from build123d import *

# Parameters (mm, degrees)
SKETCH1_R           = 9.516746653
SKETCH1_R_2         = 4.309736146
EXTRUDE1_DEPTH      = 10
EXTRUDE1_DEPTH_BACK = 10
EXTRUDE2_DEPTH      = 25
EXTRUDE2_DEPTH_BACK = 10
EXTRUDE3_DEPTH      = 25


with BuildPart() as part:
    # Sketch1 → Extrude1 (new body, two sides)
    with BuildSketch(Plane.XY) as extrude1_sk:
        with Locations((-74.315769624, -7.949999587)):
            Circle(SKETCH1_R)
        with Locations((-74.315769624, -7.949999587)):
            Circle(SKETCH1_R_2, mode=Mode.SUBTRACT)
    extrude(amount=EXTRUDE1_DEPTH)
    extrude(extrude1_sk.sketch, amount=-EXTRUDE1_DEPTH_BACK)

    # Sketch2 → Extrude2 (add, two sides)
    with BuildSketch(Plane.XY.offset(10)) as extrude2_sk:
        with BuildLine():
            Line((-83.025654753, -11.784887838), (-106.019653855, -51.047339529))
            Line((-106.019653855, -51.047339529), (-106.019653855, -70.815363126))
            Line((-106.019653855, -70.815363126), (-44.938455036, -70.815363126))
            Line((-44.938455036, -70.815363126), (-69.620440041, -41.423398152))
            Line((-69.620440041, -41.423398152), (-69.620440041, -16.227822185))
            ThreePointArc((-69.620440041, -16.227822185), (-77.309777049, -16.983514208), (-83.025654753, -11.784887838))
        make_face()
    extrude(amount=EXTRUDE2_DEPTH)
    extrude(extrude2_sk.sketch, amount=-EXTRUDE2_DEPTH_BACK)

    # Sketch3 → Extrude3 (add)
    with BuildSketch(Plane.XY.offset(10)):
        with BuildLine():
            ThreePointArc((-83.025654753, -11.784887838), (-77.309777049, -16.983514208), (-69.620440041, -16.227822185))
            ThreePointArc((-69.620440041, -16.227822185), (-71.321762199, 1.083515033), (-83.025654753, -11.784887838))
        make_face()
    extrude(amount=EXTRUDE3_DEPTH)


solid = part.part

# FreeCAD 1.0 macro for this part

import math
import FreeCAD as App
import Part
import Sketcher

V = App.Vector
Q = App.Units.Quantity

doc = App.newDocument("Part")
body = doc.addObject("PartDesign::Body", "Body")

# Sketch on XY plane
sketch1 = doc.addObject("Sketcher::SketchObject", "Sketch")
body.addObject(sketch1)
sketch1.AttachmentSupport = (doc.XY_Plane, [""])
sketch1.MapMode = "FlatFace"
sketch1.addGeometry(Part.Circle(V(-74.3, -7.9, 0), V(0, 0, 1), 9.5), False)
sketch1.addGeometry(Part.Circle(V(-74.3, -7.9, 0), V(0, 0, 1), 4.3), False)
sketch1.addConstraint(Sketcher.Constraint("Coincident", 1, 3, 0, 3))
sketch1.addConstraint(Sketcher.Constraint("DistanceY", 0, 3, -1, 1, Q("7.95 mm")))
sketch1.addConstraint(Sketcher.Constraint("Diameter", 0, Q("19.033493 mm")))
sketch1.addConstraint(Sketcher.Constraint("Diameter", 1, Q("8.619472 mm")))
sketch1.addConstraint(Sketcher.Constraint("DistanceX", 0, 3, -1, 1, Q("74.31577 mm")))
pad1 = doc.addObject("PartDesign::Pad", "Pad")
body.addObject(pad1)
pad1.Profile = sketch1
pad1.Type = "TwoLengths"
pad1.Length = 10
pad1.Length2 = 10

# Sketch on XY plane
sketch2 = doc.addObject("Sketcher::SketchObject", "Sketch001")
body.addObject(sketch2)
sketch2.AttachmentSupport = (doc.XY_Plane, [""])
sketch2.MapMode = "FlatFace"
sketch2.AttachmentOffset = App.Placement(V(0, 0, 10), App.Rotation())
sketch2.addGeometry(Part.LineSegment(V(-83, -12, 0), V(-106, -51, 0)), False)
sketch2.addGeometry(Part.LineSegment(V(-106, -51, 0), V(-106, -71, 0)), False)
sketch2.addGeometry(Part.LineSegment(V(-106, -71, 0), V(-45, -71, 0)), False)
sketch2.addGeometry(Part.LineSegment(V(-45, -71, 0), V(-70, -41, 0)), False)
sketch2.addGeometry(Part.LineSegment(V(-70, -41, 0), V(-70, -16, 0)), False)
sketch2.addGeometry(Part.ArcOfCircle(Part.Circle(V(-74, -8, 0), V(0, 0, 1), 10), math.radians(-156), math.radians(-60)), False)
sketch2.addConstraint(Sketcher.Constraint("Coincident", 0, 2, 1, 1))
sketch2.addConstraint(Sketcher.Constraint("Coincident", 1, 2, 2, 1))
sketch2.addConstraint(Sketcher.Constraint("Coincident", 2, 2, 3, 1))
sketch2.addConstraint(Sketcher.Constraint("Coincident", 3, 2, 4, 1))
sketch2.addConstraint(Sketcher.Constraint("Coincident", 4, 2, 5, 2))
sketch2.addConstraint(Sketcher.Constraint("Coincident", 5, 1, 0, 1))
sketch2.addConstraint(Sketcher.Constraint("Vertical", 1))
sketch2.addConstraint(Sketcher.Constraint("Horizontal", 2))
sketch2.addConstraint(Sketcher.Constraint("Vertical", 4))
sketch2.addConstraint(Sketcher.Constraint("DistanceY", 5, 3, -1, 1, Q("7.95 mm")))
sketch2.addConstraint(Sketcher.Constraint("DistanceX", 2, 1, 2, 2, Q("61.081199 mm")))
sketch2.addConstraint(Sketcher.Constraint("Radius", 5, Q("9.516747 mm")))
sketch2.addConstraint(Sketcher.Constraint("DistanceX", 0, 2, 5, 1, Q("22.993999 mm")))
sketch2.addConstraint(Sketcher.Constraint("DistanceY", 3, 2, -1, 1, Q("41.423398 mm")))
sketch2.addConstraint(Sketcher.Constraint("Distance", 3, Q("38.380828 mm")))
sketch2.addConstraint(Sketcher.Constraint("DistanceY", 1, 2, 1, 1, Q("19.768024 mm")))
sketch2.addConstraint(Sketcher.Constraint("DistanceY", 4, 1, 4, 2, Q("25.195576 mm")))
sketch2.addConstraint(Sketcher.Constraint("DistanceX", 5, 3, -1, 1, Q("74.31577 mm")))
sketch2.addConstraint(Sketcher.Constraint("DistanceY", 0, 2, -1, 1, Q("51.04734 mm")))
pad2 = doc.addObject("PartDesign::Pad", "Pad001")
body.addObject(pad2)
pad2.Profile = sketch2
pad2.Type = "TwoLengths"
pad2.Length = 25
pad2.Length2 = 10

# Sketch on XY plane
sketch3 = doc.addObject("Sketcher::SketchObject", "Sketch002")
body.addObject(sketch3)
sketch3.AttachmentSupport = (doc.XY_Plane, [""])
sketch3.MapMode = "FlatFace"
sketch3.AttachmentOffset = App.Placement(V(0, 0, 10), App.Rotation())
sketch3.addGeometry(Part.ArcOfCircle(Part.Circle(V(-74, -8, 0), V(0, 0, 1), 10), math.radians(-156), math.radians(-60)), False)
sketch3.addGeometry(Part.ArcOfCircle(Part.Circle(V(-74, -8, 0), V(0, 0, 1), 10), math.radians(-60), math.radians(204)), False)
sketch3.addConstraint(Sketcher.Constraint("Tangent", 0, 1, 1, 2))
sketch3.addConstraint(Sketcher.Constraint("Coincident", 1, 1, 0, 2))
sketch3.addConstraint(Sketcher.Constraint("DistanceY", 0, 3, -1, 1, Q("7.95 mm")))
sketch3.addConstraint(Sketcher.Constraint("Radius", 0, Q("9.516747 mm")))
sketch3.addConstraint(Sketcher.Constraint("DistanceX", 0, 3, -1, 1, Q("74.31577 mm")))
sketch3.addConstraint(Sketcher.Constraint("DistanceX", 1, 1, -1, 1, Q("69.62044 mm")))
sketch3.addConstraint(Sketcher.Constraint("DistanceY", 0, 1, 0, 3, Q("3.834888 mm")))
pad3 = doc.addObject("PartDesign::Pad", "Pad002")
body.addObject(pad3)
pad3.Profile = sketch3
pad3.Length = 25

doc.recompute()
